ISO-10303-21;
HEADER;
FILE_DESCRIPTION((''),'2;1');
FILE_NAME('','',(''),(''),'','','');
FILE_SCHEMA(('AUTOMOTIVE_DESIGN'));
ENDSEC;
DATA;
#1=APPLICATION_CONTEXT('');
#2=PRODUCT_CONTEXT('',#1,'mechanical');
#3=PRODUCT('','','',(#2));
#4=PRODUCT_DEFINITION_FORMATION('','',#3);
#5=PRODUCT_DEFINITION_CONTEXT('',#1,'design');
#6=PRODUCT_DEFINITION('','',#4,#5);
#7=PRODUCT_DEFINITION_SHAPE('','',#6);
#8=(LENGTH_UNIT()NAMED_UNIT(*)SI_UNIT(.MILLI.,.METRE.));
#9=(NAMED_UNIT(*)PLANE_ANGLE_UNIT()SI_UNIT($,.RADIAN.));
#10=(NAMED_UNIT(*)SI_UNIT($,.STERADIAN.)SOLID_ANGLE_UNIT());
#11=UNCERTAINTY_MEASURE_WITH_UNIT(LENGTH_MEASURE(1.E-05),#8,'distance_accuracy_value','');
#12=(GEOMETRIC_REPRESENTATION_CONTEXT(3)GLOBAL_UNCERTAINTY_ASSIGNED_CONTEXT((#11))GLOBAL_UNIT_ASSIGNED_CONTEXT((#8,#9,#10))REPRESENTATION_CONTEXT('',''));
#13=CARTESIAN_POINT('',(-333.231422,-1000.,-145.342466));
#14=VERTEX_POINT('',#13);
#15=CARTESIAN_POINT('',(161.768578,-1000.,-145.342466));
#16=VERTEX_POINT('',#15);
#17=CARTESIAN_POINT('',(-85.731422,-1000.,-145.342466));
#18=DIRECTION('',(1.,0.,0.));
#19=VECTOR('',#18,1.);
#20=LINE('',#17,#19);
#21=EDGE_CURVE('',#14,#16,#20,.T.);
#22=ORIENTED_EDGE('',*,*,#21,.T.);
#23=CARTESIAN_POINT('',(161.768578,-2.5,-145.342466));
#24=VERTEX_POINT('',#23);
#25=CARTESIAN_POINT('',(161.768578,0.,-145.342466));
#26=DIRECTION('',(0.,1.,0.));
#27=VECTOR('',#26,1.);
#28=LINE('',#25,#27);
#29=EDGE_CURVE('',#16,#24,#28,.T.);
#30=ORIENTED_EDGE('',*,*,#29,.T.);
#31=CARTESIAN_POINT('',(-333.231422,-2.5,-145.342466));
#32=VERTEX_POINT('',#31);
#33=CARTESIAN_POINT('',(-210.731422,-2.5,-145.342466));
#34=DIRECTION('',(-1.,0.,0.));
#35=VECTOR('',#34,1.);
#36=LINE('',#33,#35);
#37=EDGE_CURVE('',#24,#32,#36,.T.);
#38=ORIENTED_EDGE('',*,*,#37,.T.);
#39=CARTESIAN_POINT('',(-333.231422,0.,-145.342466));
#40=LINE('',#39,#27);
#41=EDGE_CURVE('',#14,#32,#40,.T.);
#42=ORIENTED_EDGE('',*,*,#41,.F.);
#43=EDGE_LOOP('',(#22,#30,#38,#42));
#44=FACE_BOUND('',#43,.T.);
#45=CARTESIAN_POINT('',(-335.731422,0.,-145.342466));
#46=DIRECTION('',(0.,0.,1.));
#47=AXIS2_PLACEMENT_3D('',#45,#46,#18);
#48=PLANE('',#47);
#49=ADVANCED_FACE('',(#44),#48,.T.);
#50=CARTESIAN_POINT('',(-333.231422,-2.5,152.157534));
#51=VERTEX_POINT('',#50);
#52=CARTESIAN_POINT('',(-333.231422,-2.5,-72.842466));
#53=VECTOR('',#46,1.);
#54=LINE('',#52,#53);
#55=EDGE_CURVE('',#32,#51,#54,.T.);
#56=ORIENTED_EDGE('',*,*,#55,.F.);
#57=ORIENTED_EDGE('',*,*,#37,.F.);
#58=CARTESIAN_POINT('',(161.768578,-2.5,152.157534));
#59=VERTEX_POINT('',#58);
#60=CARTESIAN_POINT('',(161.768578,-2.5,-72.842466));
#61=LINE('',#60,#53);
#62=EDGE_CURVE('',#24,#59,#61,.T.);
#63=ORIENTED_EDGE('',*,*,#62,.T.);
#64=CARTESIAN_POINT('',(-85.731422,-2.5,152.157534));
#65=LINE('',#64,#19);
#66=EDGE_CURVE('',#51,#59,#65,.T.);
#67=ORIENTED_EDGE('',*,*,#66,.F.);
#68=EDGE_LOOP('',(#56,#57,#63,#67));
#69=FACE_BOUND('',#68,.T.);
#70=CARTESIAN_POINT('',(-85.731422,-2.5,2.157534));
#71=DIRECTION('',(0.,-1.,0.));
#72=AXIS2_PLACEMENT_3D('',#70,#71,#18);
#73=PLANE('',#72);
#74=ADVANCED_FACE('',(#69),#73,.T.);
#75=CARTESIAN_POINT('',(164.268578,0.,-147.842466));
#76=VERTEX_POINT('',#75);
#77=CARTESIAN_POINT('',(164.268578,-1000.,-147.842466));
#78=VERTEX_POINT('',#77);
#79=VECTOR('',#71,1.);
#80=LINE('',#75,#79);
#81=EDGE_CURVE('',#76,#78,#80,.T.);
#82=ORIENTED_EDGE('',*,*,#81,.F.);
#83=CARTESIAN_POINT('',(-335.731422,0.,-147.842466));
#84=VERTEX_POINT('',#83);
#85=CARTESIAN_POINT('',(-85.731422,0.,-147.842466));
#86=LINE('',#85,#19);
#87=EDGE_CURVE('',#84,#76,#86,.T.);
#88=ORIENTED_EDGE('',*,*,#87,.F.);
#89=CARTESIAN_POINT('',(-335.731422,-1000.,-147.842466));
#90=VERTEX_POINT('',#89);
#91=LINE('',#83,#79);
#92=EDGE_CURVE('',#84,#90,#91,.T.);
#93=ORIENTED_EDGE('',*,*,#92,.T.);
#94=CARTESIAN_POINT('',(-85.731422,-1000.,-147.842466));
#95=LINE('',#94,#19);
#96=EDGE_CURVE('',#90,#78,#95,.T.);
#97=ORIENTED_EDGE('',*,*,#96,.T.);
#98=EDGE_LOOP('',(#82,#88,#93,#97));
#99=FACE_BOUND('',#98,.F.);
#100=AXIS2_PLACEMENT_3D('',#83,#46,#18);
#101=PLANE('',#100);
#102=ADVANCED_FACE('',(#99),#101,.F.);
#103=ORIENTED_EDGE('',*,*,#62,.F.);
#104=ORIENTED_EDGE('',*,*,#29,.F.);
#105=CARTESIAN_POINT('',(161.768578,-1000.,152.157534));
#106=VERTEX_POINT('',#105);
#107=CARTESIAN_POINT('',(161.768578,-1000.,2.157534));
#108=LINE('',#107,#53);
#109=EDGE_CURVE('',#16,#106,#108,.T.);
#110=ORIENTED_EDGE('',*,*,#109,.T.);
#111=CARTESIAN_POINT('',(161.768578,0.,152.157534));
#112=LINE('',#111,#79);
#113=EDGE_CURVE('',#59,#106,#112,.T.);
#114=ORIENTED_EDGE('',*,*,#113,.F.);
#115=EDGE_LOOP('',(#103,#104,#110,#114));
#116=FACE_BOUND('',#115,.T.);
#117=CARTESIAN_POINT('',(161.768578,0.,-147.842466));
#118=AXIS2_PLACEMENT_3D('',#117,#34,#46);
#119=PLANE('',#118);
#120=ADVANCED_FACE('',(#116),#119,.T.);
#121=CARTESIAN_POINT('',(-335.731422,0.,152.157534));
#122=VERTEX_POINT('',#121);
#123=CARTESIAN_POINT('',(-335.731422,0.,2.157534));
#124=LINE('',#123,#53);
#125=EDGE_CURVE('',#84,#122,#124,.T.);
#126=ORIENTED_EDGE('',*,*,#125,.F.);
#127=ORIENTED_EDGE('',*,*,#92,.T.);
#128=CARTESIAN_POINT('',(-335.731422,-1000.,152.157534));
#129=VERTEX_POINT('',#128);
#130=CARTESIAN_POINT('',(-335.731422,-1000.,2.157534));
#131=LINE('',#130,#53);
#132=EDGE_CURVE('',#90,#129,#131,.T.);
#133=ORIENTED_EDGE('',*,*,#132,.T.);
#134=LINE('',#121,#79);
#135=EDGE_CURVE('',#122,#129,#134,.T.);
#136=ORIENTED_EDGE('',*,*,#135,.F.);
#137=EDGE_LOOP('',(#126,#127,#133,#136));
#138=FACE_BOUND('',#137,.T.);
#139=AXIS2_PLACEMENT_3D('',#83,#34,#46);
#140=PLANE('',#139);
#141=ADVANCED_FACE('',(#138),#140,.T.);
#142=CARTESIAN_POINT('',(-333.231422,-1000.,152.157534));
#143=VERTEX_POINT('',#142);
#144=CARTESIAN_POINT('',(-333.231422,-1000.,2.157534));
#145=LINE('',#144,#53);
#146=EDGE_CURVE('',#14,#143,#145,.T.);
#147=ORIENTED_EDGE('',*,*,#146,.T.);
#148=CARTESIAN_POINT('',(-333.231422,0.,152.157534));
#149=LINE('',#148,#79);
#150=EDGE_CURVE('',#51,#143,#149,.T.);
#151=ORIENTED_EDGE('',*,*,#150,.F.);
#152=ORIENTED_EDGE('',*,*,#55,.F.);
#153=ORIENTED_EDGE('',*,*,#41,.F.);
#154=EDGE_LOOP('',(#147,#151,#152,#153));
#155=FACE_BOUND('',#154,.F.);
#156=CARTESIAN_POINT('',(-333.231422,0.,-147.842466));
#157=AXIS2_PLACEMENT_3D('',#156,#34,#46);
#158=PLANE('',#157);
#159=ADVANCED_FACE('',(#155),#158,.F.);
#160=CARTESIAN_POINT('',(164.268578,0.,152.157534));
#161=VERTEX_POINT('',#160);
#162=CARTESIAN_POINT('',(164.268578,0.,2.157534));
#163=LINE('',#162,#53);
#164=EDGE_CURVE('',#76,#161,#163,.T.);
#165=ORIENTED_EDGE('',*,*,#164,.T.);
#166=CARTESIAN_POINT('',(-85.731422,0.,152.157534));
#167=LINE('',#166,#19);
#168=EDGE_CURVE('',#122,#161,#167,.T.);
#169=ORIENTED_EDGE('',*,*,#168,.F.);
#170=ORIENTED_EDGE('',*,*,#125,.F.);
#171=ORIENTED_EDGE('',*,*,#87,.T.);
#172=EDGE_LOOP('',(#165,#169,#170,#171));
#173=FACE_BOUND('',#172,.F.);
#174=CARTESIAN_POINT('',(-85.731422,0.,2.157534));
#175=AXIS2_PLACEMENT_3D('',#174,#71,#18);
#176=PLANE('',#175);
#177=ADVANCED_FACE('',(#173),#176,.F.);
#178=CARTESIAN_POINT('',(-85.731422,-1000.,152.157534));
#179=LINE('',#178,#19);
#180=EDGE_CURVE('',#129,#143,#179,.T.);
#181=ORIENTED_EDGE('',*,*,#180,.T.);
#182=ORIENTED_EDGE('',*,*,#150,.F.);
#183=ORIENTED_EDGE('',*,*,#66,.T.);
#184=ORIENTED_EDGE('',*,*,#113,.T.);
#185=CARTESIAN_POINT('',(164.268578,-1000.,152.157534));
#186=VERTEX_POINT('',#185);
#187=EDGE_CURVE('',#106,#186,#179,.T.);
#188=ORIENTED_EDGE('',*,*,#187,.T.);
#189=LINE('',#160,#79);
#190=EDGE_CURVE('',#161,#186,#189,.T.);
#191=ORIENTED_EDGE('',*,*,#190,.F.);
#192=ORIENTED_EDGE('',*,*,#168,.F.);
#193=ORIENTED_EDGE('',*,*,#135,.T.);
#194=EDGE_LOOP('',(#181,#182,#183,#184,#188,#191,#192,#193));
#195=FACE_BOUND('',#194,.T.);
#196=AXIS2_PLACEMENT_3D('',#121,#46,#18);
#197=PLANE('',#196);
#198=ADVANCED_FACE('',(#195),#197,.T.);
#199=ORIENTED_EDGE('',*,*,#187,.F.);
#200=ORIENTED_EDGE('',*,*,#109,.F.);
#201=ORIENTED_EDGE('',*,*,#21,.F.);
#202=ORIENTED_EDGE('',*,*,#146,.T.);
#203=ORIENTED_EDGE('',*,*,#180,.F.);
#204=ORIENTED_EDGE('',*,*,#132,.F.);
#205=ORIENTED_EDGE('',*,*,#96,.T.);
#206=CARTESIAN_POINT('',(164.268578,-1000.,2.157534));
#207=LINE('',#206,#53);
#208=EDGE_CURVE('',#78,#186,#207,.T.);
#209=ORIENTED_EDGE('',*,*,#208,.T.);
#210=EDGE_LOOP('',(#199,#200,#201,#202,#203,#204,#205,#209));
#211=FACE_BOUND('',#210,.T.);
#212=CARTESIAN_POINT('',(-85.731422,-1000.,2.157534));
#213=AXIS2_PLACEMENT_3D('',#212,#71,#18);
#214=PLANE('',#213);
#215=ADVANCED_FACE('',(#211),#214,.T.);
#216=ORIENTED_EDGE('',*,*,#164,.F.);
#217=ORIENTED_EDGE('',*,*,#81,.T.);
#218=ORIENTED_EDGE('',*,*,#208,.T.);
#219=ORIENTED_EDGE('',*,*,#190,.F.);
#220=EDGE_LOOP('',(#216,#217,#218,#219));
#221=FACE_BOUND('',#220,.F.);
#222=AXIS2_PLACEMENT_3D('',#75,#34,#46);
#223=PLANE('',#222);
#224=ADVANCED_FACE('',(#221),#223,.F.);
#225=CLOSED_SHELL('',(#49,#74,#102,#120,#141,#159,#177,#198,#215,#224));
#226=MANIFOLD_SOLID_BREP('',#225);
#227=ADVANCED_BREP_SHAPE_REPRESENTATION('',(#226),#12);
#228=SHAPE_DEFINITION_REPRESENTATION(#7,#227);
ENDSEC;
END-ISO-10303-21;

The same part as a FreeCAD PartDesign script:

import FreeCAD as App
import Part
import Sketcher
from FreeCAD import Vector
Q = App.Units.Quantity


def faces_at(feature, points):
    """Names of the faces that lie closest to the given points."""
    faces = feature.Shape.Faces
    near = lambda p: min(range(len(faces)), key=lambda i: faces[i].distToShape(Part.Vertex(*p))[0])
    return sorted({f"Face{near(p) + 1}" for p in points})


def add_polygon(sketch, points):
    """Adds a closed chain of lines whose ends are joined by coincident constraints."""
    first, n = sketch.GeometryCount, len(points)
    for a, b in zip(points, points[1:] + points[:1]):
        sketch.addGeometry(Part.LineSegment(App.Vector(*a, 0), App.Vector(*b, 0)), False)
    for i in range(n):
        sketch.addConstraint(Sketcher.Constraint("Coincident", first + i, 2, first + (i + 1) % n, 1))

doc = App.newDocument("Part")
params = doc.addObject("Spreadsheet::Sheet", "Params")
for row, (alias, value) in enumerate([
    ("sketch1_width", "500 mm"),
    ("sketch1_height", "300 mm"),
    ("pad1_length", "1000 mm"),
    ("thickness_wall", "2.5 mm"),
], start=1):
    params.set(f"A{row}", alias)
    params.set(f"B{row}", "=" + value)
    params.setAlias(f"B{row}", alias)

body = doc.addObject("PartDesign::Body", "Body")

# Sketch on XZ plane
sketch1 = body.newObject("Sketcher::SketchObject", "Sketch")
sketch1.AttachmentSupport = (doc.getObject("XZ_Plane"), [""])
sketch1.MapMode = "FlatFace"
add_polygon(sketch1, [(-335.731422, 152.157534), (-335.731422, -147.842466), (164.268578, -147.842466), (164.268578, 152.157534)])  # lines 0-3
sketch1.addConstraint([
    Sketcher.Constraint("Vertical", 0),
    Sketcher.Constraint("Horizontal", 1),
    Sketcher.Constraint("Vertical", 2),
    Sketcher.Constraint("Horizontal", 3),
    Sketcher.Constraint("DistanceX", 1, 1, 1, 2, Q("500 mm")),
    Sketcher.Constraint("DistanceY", 0, 2, 0, 1, Q("300 mm")),
    Sketcher.Constraint("DistanceX", 0, 2, -1, 1, Q("335.731422 mm")),
    Sketcher.Constraint("DistanceY", 0, 2, -1, 1, Q("147.842466 mm")),
])
sketch1.setExpression("Constraints[8]", "Params.sketch1_width")
sketch1.setExpression("Constraints[9]", "Params.sketch1_height")
pad1 = body.newObject("PartDesign::Pad", "Pad")
pad1.Profile = sketch1
pad1.setExpression("Length", "Params.pad1_length")
doc.recompute()

thickness = body.newObject("PartDesign::Thickness", "Thickness")
thickness.Base = (pad1, faces_at(pad1, [(-85.731, -500, 152.158), (-85.731, -1000, 2.158)]))
thickness.setExpression("Value", "Params.thickness_wall")
thickness.Reversed = True
thickness.Join = "Arc"

doc.recompute()
